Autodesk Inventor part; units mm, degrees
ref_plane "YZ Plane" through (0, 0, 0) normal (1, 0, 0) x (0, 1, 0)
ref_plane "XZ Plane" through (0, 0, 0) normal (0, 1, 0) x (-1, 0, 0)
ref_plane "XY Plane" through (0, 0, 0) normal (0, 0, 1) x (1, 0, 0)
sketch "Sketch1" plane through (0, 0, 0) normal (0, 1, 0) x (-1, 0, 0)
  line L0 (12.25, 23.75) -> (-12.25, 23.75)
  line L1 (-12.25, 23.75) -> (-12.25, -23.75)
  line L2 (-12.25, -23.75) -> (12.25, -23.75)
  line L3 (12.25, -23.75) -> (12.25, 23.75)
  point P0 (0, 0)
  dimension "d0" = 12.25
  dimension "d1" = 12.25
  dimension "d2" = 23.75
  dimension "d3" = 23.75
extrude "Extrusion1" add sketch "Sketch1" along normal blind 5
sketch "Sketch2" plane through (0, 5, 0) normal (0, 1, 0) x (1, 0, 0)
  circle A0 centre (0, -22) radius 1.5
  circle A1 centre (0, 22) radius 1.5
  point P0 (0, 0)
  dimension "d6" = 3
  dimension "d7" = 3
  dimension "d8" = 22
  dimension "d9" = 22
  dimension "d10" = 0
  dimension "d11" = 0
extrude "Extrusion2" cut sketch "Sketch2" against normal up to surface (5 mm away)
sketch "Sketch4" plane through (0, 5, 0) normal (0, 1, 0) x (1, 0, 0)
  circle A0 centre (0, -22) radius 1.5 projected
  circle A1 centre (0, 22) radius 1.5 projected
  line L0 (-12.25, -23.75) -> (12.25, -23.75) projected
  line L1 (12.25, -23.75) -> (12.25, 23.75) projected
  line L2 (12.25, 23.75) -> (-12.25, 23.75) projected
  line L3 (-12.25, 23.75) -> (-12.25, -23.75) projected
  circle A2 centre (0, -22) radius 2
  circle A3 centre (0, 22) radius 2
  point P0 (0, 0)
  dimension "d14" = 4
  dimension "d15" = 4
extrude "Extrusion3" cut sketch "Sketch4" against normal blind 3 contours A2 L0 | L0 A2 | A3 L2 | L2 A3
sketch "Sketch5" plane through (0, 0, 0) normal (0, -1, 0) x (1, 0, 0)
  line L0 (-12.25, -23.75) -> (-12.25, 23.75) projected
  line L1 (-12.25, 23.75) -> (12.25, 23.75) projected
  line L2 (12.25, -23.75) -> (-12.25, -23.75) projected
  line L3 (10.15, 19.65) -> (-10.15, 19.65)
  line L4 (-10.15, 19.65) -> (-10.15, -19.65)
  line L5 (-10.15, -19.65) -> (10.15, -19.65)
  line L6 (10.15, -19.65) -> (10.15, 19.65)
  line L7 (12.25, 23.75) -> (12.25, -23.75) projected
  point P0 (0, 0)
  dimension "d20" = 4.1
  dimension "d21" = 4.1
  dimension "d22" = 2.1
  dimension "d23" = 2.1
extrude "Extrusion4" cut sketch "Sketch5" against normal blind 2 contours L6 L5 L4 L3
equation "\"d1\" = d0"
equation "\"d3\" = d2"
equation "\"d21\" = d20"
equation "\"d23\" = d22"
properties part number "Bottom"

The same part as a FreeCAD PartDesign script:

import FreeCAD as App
import Part
import Sketcher
from FreeCAD import Vector

doc = App.newDocument("Part")
body = doc.addObject("PartDesign::Body", "Body")

sketch1 = doc.addObject("Sketcher::SketchObject", "Sketch")
body.addObject(sketch1)
sketch1.AttachmentSupport = (doc.XZ_Plane, [""])
sketch1.MapMode = "FlatFace"
sketch1.addGeometry(Part.LineSegment(Vector(-12.25, -23.75, 0), Vector(-12.25, 23.75, 0)), False)
sketch1.addGeometry(Part.LineSegment(Vector(-12.25, 23.75, 0), Vector(12.25, 23.75, 0)), False)
sketch1.addGeometry(Part.LineSegment(Vector(12.25, 23.75, 0), Vector(12.25, -23.75, 0)), False)
sketch1.addGeometry(Part.LineSegment(Vector(12.25, -23.75, 0), Vector(-12.25, -23.75, 0)), False)
sketch1.addConstraint(Sketcher.Constraint("Coincident", 0, 2, 1, 1))
sketch1.addConstraint(Sketcher.Constraint("Coincident", 1, 2, 2, 1))
sketch1.addConstraint(Sketcher.Constraint("Coincident", 2, 2, 3, 1))
sketch1.addConstraint(Sketcher.Constraint("Coincident", 3, 2, 0, 1))
sketch1.addConstraint(Sketcher.Constraint("Vertical", 0))
sketch1.addConstraint(Sketcher.Constraint("Horizontal", 1))
sketch1.addConstraint(Sketcher.Constraint("Vertical", 2))
sketch1.addConstraint(Sketcher.Constraint("Horizontal", 3))
sketch1.addConstraint(Sketcher.Constraint("Symmetric", 0, 2, 2, 2, -1, 1))
sketch1.addConstraint(Sketcher.Constraint("DistanceX", 0, 2, -1, 1, 12.25))
sketch1.addConstraint(Sketcher.Constraint("DistanceY", -1, 1, 0, 2, 23.75))
pad1 = doc.addObject("PartDesign::Pad", "Pad")
body.addObject(pad1)
pad1.Profile = sketch1
pad1.Length = 5
pad1.Reversed = True

sketch2 = doc.addObject("Sketcher::SketchObject", "Sketch001")
body.addObject(sketch2)
sketch2.AttachmentSupport = (doc.XZ_Plane, [""])
sketch2.MapMode = "FlatFace"
sketch2.AttachmentOffset = App.Placement(Vector(0, 0, -5), App.Rotation())
sketch2.addGeometry(Part.Circle(Vector(0, 22, 0), Vector(0, 0, 1), 1.5), False)
sketch2.addGeometry(Part.Circle(Vector(0, -22, 0), Vector(0, 0, 1), 1.5), False)
sketch2.addConstraint(Sketcher.Constraint("Equal", 0, 1))
sketch2.addConstraint(Sketcher.Constraint("Symmetric", 0, 3, 1, 3, -1, 1))
sketch2.addConstraint(Sketcher.Constraint("PointOnObject", 0, 3, -2))
sketch2.addConstraint(Sketcher.Constraint("Diameter", 0, 3.0))
sketch2.addConstraint(Sketcher.Constraint("DistanceY", -1, 1, 0, 3, 22.0))
pocket1 = doc.addObject("PartDesign::Pocket", "Pocket")
body.addObject(pocket1)
pocket1.Profile = sketch2
pocket1.Length = 5
pocket1.Reversed = True

sketch3 = doc.addObject("Sketcher::SketchObject", "Sketch002")
body.addObject(sketch3)
sketch3.AttachmentSupport = (doc.XZ_Plane, [""])
sketch3.MapMode = "FlatFace"
sketch3.AttachmentOffset = App.Placement(Vector(0, 0, -5), App.Rotation())
sketch3.addGeometry(Part.Circle(Vector(0, 22, 0), Vector(0, 0, 1), 2), False)
sketch3.addGeometry(Part.Circle(Vector(0, 22, 0), Vector(0, 0, 1), 1.5), False)
sketch3.addGeometry(Part.Circle(Vector(0, -22, 0), Vector(0, 0, 1), 2), False)
sketch3.addGeometry(Part.Circle(Vector(0, -22, 0), Vector(0, 0, 1), 1.5), False)
sketch3.addConstraint(Sketcher.Constraint("Coincident", 1, 3, 0, 3))
sketch3.addConstraint(Sketcher.Constraint("Coincident", 3, 3, 2, 3))
sketch3.addConstraint(Sketcher.Constraint("Equal", 0, 2))
sketch3.addConstraint(Sketcher.Constraint("Equal", 1, 3))
sketch3.addConstraint(Sketcher.Constraint("Symmetric", 0, 3, 2, 3, -1, 1))
sketch3.addConstraint(Sketcher.Constraint("PointOnObject", 0, 3, -2))
sketch3.addConstraint(Sketcher.Constraint("Diameter", 0, 4.0))
sketch3.addConstraint(Sketcher.Constraint("Diameter", 1, 3.0))
sketch3.addConstraint(Sketcher.Constraint("DistanceY", -1, 1, 0, 3, 22.0))
pocket2 = doc.addObject("PartDesign::Pocket", "Pocket001")
body.addObject(pocket2)
pocket2.Profile = sketch3
pocket2.Length = 3
pocket2.Reversed = True

sketch4 = doc.addObject("Sketcher::SketchObject", "Sketch003")
body.addObject(sketch4)
sketch4.AttachmentSupport = (doc.XZ_Plane, [""])
sketch4.MapMode = "FlatFace"
sketch4.addGeometry(Part.LineSegment(Vector(10.15, -19.65, 0), Vector(10.15, 19.65, 0)), False)
sketch4.addGeometry(Part.LineSegment(Vector(10.15, 19.65, 0), Vector(-10.15, 19.65, 0)), False)
sketch4.addGeometry(Part.LineSegment(Vector(-10.15, 19.65, 0), Vector(-10.15, -19.65, 0)), False)
sketch4.addGeometry(Part.LineSegment(Vector(-10.15, -19.65, 0), Vector(10.15, -19.65, 0)), False)
sketch4.addConstraint(Sketcher.Constraint("Coincident", 0, 2, 1, 1))
sketch4.addConstraint(Sketcher.Constraint("Coincident", 1, 2, 2, 1))
sketch4.addConstraint(Sketcher.Constraint("Coincident", 2, 2, 3, 1))
sketch4.addConstraint(Sketcher.Constraint("Coincident", 3, 2, 0, 1))
sketch4.addConstraint(Sketcher.Constraint("Vertical", 0))
sketch4.addConstraint(Sketcher.Constraint("Horizontal", 1))
sketch4.addConstraint(Sketcher.Constraint("Vertical", 2))
sketch4.addConstraint(Sketcher.Constraint("Horizontal", 3))
sketch4.addConstraint(Sketcher.Constraint("Symmetric", 0, 2, 2, 2, -1, 1))
sketch4.addConstraint(Sketcher.Constraint("DistanceX", 1, 2, 1, 1, 20.3))
sketch4.addConstraint(Sketcher.Constraint("DistanceY", 0, 1, 0, 2, 39.3))
pocket3 = doc.addObject("PartDesign::Pocket", "Pocket002")
body.addObject(pocket3)
pocket3.Profile = sketch4
pocket3.Length = 2

doc.recompute()
